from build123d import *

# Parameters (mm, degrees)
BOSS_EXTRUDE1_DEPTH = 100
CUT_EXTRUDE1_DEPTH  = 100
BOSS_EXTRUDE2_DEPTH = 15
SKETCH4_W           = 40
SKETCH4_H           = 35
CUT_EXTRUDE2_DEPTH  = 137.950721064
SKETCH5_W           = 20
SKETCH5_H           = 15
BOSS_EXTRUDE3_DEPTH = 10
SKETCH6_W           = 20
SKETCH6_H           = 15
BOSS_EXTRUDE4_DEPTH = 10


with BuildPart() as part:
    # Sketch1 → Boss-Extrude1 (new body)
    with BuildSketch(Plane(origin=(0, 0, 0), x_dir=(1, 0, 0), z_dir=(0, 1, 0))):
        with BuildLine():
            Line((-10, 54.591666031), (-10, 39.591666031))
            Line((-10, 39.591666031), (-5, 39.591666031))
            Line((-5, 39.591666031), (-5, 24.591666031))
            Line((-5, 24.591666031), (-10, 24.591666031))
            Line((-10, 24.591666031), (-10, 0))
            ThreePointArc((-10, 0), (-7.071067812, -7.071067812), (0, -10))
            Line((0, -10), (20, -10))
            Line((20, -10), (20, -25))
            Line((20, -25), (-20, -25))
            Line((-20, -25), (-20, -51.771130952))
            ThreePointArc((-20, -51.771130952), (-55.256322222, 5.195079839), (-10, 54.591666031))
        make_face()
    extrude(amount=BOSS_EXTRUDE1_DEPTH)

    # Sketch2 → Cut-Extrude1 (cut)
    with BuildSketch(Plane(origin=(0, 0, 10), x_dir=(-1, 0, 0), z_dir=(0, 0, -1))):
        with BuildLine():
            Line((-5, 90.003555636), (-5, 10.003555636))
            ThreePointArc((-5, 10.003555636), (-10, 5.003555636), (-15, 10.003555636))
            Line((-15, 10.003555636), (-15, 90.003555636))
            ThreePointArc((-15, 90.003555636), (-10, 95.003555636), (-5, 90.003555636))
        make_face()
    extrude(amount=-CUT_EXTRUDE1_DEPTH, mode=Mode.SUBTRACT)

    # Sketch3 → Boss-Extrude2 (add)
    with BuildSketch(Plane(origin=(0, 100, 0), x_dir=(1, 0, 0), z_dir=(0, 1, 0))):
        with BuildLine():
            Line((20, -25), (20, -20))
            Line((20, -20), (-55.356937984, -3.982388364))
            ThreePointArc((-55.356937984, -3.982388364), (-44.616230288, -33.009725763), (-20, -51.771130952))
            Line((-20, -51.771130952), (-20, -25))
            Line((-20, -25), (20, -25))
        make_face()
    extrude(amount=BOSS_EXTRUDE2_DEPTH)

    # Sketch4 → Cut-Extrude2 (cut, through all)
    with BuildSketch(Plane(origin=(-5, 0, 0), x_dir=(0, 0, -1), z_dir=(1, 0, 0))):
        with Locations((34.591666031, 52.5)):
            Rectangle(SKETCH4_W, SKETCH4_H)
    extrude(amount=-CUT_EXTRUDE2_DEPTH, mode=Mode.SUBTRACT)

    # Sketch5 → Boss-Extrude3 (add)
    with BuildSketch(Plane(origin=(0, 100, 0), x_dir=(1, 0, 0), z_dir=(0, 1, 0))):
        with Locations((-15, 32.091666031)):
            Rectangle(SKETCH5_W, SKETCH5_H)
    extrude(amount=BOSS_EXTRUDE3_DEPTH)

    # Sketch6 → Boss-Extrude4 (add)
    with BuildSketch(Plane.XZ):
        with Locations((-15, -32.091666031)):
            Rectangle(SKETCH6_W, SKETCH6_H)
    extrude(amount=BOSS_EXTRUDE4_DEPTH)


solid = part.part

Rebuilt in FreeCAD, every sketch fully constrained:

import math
import FreeCAD as App
import Part
import Sketcher
Q = App.Units.Quantity


def add_polygon(sketch, points):
    """Adds a closed chain of lines whose ends are joined by coincident constraints."""
    first, n = sketch.GeometryCount, len(points)
    for a, b in zip(points, points[1:] + points[:1]):
        sketch.addGeometry(Part.LineSegment(App.Vector(*a, 0), App.Vector(*b, 0)), False)
    for i in range(n):
        sketch.addConstraint(Sketcher.Constraint("Coincident", first + i, 2, first + (i + 1) % n, 1))

doc = App.newDocument("Part")
body = doc.addObject("PartDesign::Body", "Body")

sketch1 = body.newObject("Sketcher::SketchObject", "Sketch")
sketch1.AttachmentSupport = (doc.getObject("XZ_Plane"), [""])
sketch1.MapMode = "FlatFace"
sketch1.addGeometry([
    Part.LineSegment(App.Vector(-10, -39.591666, 0), App.Vector(-10, -54.591666, 0)),
    Part.ArcOfCircle(Part.Circle(App.Vector(0, 0, 0), App.Vector(0, 0, 1), 55.5), math.radians(111.122329), math.radians(259.619745)),
    Part.LineSegment(App.Vector(-20, 51.771131, 0), App.Vector(-20, 25, 0)),
    Part.LineSegment(App.Vector(-20, 25, 0), App.Vector(20, 25, 0)),
    Part.LineSegment(App.Vector(20, 25, 0), App.Vector(20, 10, 0)),
    Part.LineSegment(App.Vector(20, 10, 0), App.Vector(0, 10, 0)),
    Part.ArcOfCircle(Part.Circle(App.Vector(0, 0, 0), App.Vector(0, 0, 1), 10), math.radians(90), math.radians(180)),
    Part.LineSegment(App.Vector(-10, 0, 0), App.Vector(-10, -24.591666, 0)),
    Part.LineSegment(App.Vector(-10, -24.591666, 0), App.Vector(-5, -24.591666, 0)),
    Part.LineSegment(App.Vector(-5, -24.591666, 0), App.Vector(-5, -39.591666, 0)),
    Part.LineSegment(App.Vector(-5, -39.591666, 0), App.Vector(-10, -39.591666, 0)),
], False)
sketch1.addConstraint([
    Sketcher.Constraint("Coincident", 0, 2, 1, 2),
    Sketcher.Constraint("Coincident", 1, 1, 2, 1),
    Sketcher.Constraint("Coincident", 2, 2, 3, 1),
    Sketcher.Constraint("Coincident", 3, 2, 4, 1),
    Sketcher.Constraint("Coincident", 4, 2, 5, 1),
    Sketcher.Constraint("Tangent", 5, 2, 6, 1),
    Sketcher.Constraint("Tangent", 6, 2, 7, 1),
    Sketcher.Constraint("Coincident", 7, 2, 8, 1),
    Sketcher.Constraint("Coincident", 8, 2, 9, 1),
    Sketcher.Constraint("Coincident", 9, 2, 10, 1),
    Sketcher.Constraint("Coincident", 10, 2, 0, 1),
    Sketcher.Constraint("Vertical", 0),
    Sketcher.Constraint("Vertical", 2),
    Sketcher.Constraint("Horizontal", 3),
    Sketcher.Constraint("Vertical", 4),
    Sketcher.Constraint("Horizontal", 5),
    Sketcher.Constraint("Vertical", 7),
    Sketcher.Constraint("Horizontal", 8),
    Sketcher.Constraint("Vertical", 9),
    Sketcher.Constraint("Horizontal", 10),
    Sketcher.Constraint("Coincident", 1, 3, -1, 1),
    Sketcher.Constraint("Coincident", 6, 3, -1, 1),
    Sketcher.Constraint("Vertical", 0, 2, 6, 2),
    Sketcher.Constraint("Equal", 0, 4),
    Sketcher.Constraint("Equal", 4, 9),
    Sketcher.Constraint("Radius", 6, Q("10 mm")),
    Sketcher.Constraint("Radius", 1, Q("55.5 mm")),
    Sketcher.Constraint("DistanceX", 3, 1, 3, 2, Q("40 mm")),
    Sketcher.Constraint("DistanceX", 5, 2, 5, 1, Q("20 mm")),
    Sketcher.Constraint("DistanceX", 8, 1, 8, 2, Q("5 mm")),
    Sketcher.Constraint("DistanceY", 0, 2, 0, 1, Q("15 mm")),
])
pad1 = body.newObject("PartDesign::Pad", "Pad")
pad1.Profile = sketch1
pad1.Length = 100
pad1.Reversed = True

sketch2 = body.newObject("Sketcher::SketchObject", "Sketch001")
sketch2.AttachmentSupport = (doc.getObject("XY_Plane"), [""])
sketch2.MapMode = "FlatFace"
sketch2.AttachmentOffset = App.Placement(App.Vector(0, 0, 10), App.Rotation())
sketch2.addGeometry([
    Part.LineSegment(App.Vector(5, 10.003556, 0), App.Vector(5, 90.003556, 0)),
    Part.ArcOfCircle(Part.Circle(App.Vector(10, 90.003556, 0), App.Vector(0, 0, 1), 5), math.radians(0), math.radians(180)),
    Part.LineSegment(App.Vector(15, 90.003556, 0), App.Vector(15, 10.003556, 0)),
    Part.ArcOfCircle(Part.Circle(App.Vector(10, 10.003556, 0), App.Vector(0, 0, 1), 5), math.radians(180), math.radians(360)),
], False)
sketch2.addConstraint([
    Sketcher.Constraint("Tangent", 0, 2, 1, 2),
    Sketcher.Constraint("Tangent", 1, 1, 2, 1),
    Sketcher.Constraint("Tangent", 2, 2, 3, 2),
    Sketcher.Constraint("Tangent", 3, 1, 0, 1),
    Sketcher.Constraint("Vertical", 0),
    Sketcher.Constraint("Vertical", 2),
    Sketcher.Constraint("Radius", 1, Q("5 mm")),
    Sketcher.Constraint("DistanceY", 0, 1, 0, 2, Q("80 mm")),
    Sketcher.Constraint("DistanceX", -1, 1, 1, 3, Q("10 mm")),
    Sketcher.Constraint("DistanceY", -1, 1, 1, 3, Q("90.003556 mm")),
])
pocket1 = body.newObject("PartDesign::Pocket", "Pocket")
pocket1.Profile = sketch2
pocket1.Length = 100
pocket1.Reversed = True

sketch3 = body.newObject("Sketcher::SketchObject", "Sketch002")
sketch3.AttachmentSupport = (doc.getObject("XZ_Plane"), [""])
sketch3.MapMode = "FlatFace"
sketch3.AttachmentOffset = App.Placement(App.Vector(0, 0, -100), App.Rotation())
sketch3.addGeometry([
    Part.LineSegment(App.Vector(20, 25, 0), App.Vector(20, 20, 0)),
    Part.LineSegment(App.Vector(20, 20, 0), App.Vector(-55.356938, 3.982388, 0)),
    Part.ArcOfCircle(Part.Circle(App.Vector(0, 0, 0), App.Vector(0, 0, 1), 55.5), math.radians(111.122329), math.radians(175.88522)),
    Part.LineSegment(App.Vector(-20, 51.771131, 0), App.Vector(-20, 25, 0)),
    Part.LineSegment(App.Vector(-20, 25, 0), App.Vector(20, 25, 0)),
], False)
sketch3.addConstraint([
    Sketcher.Constraint("Coincident", 0, 2, 1, 1),
    Sketcher.Constraint("Coincident", 1, 2, 2, 2),
    Sketcher.Constraint("Coincident", 2, 1, 3, 1),
    Sketcher.Constraint("Coincident", 3, 2, 4, 1),
    Sketcher.Constraint("Coincident", 4, 2, 0, 1),
    Sketcher.Constraint("Vertical", 0),
    Sketcher.Constraint("Vertical", 3),
    Sketcher.Constraint("Horizontal", 4),
    Sketcher.Constraint("Coincident", 2, 3, -1, 1),
    Sketcher.Constraint("Radius", 2, Q("55.5 mm")),
    Sketcher.Constraint("DistanceX", 4, 1, 4, 2, Q("40 mm")),
    Sketcher.Constraint("DistanceY", 0, 2, 0, 1, Q("5 mm")),
    Sketcher.Constraint("Angle", 1, Q("-168 deg")),
    Sketcher.Constraint("DistanceX", -1, 1, 0, 2, Q("20 mm")),
    Sketcher.Constraint("DistanceY", -1, 1, 0, 2, Q("20 mm")),
])
pad2 = body.newObject("PartDesign::Pad", "Pad001")
pad2.Profile = sketch3
pad2.Length = 15
pad2.Reversed = True

sketch4 = body.newObject("Sketcher::SketchObject", "Sketch003")
sketch4.AttachmentSupport = (doc.getObject("YZ_Plane"), [""])
sketch4.MapMode = "FlatFace"
sketch4.AttachmentOffset = App.Placement(App.Vector(0, 0, -5), App.Rotation())
add_polygon(sketch4, [(70, -14.591666), (35, -14.591666), (35, -54.591666), (70, -54.591666)])
sketch4.addConstraint([
    Sketcher.Constraint("Horizontal", 0),
    Sketcher.Constraint("Vertical", 1),
    Sketcher.Constraint("Horizontal", 2),
    Sketcher.Constraint("Vertical", 3),
    Sketcher.Constraint("DistanceX", 0, 2, 0, 1, Q("35 mm")),
    Sketcher.Constraint("DistanceY", 1, 2, 1, 1, Q("40 mm")),
    Sketcher.Constraint("DistanceX", -1, 1, 0, 2, Q("35 mm")),
    Sketcher.Constraint("DistanceY", 0, 2, -1, 1, Q("14.591666 mm")),
])
pocket2 = body.newObject("PartDesign::Pocket", "Pocket001")
pocket2.Profile = sketch4
pocket2.Type = "ThroughAll"

sketch5 = body.newObject("Sketcher::SketchObject", "Sketch004")
sketch5.AttachmentSupport = (doc.getObject("XZ_Plane"), [""])
sketch5.MapMode = "FlatFace"
sketch5.AttachmentOffset = App.Placement(App.Vector(0, 0, -100), App.Rotation())
add_polygon(sketch5, [(-25, -39.591666), (-25, -24.591666), (-5, -24.591666), (-5, -39.591666)])
sketch5.addConstraint([
    Sketcher.Constraint("Vertical", 0),
    Sketcher.Constraint("Horizontal", 1),
    Sketcher.Constraint("Vertical", 2),
    Sketcher.Constraint("Horizontal", 3),
    Sketcher.Constraint("DistanceX", 1, 1, 1, 2, Q("20 mm")),
    Sketcher.Constraint("DistanceY", 0, 1, 0, 2, Q("15 mm")),
    Sketcher.Constraint("DistanceX", 0, 2, -1, 1, Q("25 mm")),
    Sketcher.Constraint("DistanceY", 0, 2, -1, 1, Q("24.591666 mm")),
])
pad3 = body.newObject("PartDesign::Pad", "Pad002")
pad3.Profile = sketch5
pad3.Length = 10
pad3.Reversed = True

sketch6 = body.newObject("Sketcher::SketchObject", "Sketch005")
sketch6.AttachmentSupport = (doc.getObject("XZ_Plane"), [""])
sketch6.MapMode = "FlatFace"
add_polygon(sketch6, [(-25, -24.591666), (-25, -39.591666), (-5, -39.591666), (-5, -24.591666)])
sketch6.addConstraint([
    Sketcher.Constraint("Vertical", 0),
    Sketcher.Constraint("Horizontal", 1),
    Sketcher.Constraint("Vertical", 2),
    Sketcher.Constraint("Horizontal", 3),
    Sketcher.Constraint("DistanceX", 1, 1, 1, 2, Q("20 mm")),
    Sketcher.Constraint("DistanceY", 0, 2, 0, 1, Q("15 mm")),
    Sketcher.Constraint("DistanceX", 0, 2, -1, 1, Q("25 mm")),
    Sketcher.Constraint("DistanceY", 0, 2, -1, 1, Q("39.591666 mm")),
])
pad4 = body.newObject("PartDesign::Pad", "Pad003")
pad4.Profile = sketch6
pad4.Length = 10

doc.recompute()
